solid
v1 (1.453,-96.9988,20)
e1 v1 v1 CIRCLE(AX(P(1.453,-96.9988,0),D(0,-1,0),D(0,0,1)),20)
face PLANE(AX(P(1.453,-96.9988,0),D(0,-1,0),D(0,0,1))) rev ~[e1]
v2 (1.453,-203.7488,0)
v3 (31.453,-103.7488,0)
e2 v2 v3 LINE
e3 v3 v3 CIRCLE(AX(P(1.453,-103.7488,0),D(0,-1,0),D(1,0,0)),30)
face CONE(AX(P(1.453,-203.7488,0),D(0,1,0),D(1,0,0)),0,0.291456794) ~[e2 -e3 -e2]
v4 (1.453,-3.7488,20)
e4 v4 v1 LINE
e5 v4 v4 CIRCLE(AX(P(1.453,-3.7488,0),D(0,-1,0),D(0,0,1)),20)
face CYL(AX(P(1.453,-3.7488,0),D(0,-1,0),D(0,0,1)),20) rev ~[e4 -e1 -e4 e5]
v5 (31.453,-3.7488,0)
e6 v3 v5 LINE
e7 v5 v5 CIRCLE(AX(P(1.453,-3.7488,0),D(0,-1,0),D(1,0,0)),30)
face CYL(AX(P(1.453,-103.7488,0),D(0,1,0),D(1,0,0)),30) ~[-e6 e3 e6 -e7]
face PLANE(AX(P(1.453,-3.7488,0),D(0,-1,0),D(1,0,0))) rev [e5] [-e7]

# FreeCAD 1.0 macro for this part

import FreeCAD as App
import Part
import Sketcher


def add_polygon(sketch, points):
    """Adds a closed chain of lines whose ends are joined by coincident constraints."""
    first, n = sketch.GeometryCount, len(points)
    for a, b in zip(points, points[1:] + points[:1]):
        sketch.addGeometry(Part.LineSegment(App.Vector(*a, 0), App.Vector(*b, 0)), False)
    for i in range(n):
        sketch.addConstraint(Sketcher.Constraint("Coincident", first + i, 2, first + (i + 1) % n, 1))

doc = App.newDocument("Part")
body = doc.addObject("PartDesign::Body", "Body")

sketch1 = body.newObject("Sketcher::SketchObject", "Sketch")
sketch1.AttachmentSupport = (doc.getObject("XY_Plane"), [""])
sketch1.MapMode = "FlatFace"
add_polygon(sketch1, [(31.453, -3.7488), (1.453, -3.7488), (1.453, -203.7488), (31.453, -103.7488)])
sketch1.addGeometry(Part.LineSegment(App.Vector(1.453, -3.7488, 0), App.Vector(1.453, -203.7488, 0)), True)
sketch1.addConstraint([
    Sketcher.Constraint("Horizontal", 0),
    Sketcher.Constraint("Vertical", 1),
    Sketcher.Constraint("Vertical", 3),
    Sketcher.Constraint("Vertical", 4),
    Sketcher.Constraint("Coincident", 4, 1, 0, 2),
    Sketcher.Constraint("Equal", 1, 4),
    Sketcher.Constraint("DistanceX", 0, 2, 0, 1, 30.0),
    Sketcher.Constraint("DistanceY", 1, 2, 1, 1, 200.0),
    Sketcher.Constraint("DistanceY", 3, 1, 3, 2, 100.0),
    Sketcher.Constraint("DistanceX", -1, 1, 0, 2, 1.453),
    Sketcher.Constraint("DistanceY", 0, 2, -1, 1, 3.7488),
])
revolution = body.newObject("PartDesign::Revolution", "Revolution")
revolution.Profile = sketch1
revolution.ReferenceAxis = (sketch1, ["Axis0"])
revolution.Angle = 360

sketch2 = body.newObject("Sketcher::SketchObject", "Sketch001")
sketch2.AttachmentSupport = (doc.getObject("XZ_Plane"), [""])
sketch2.MapMode = "FlatFace"
sketch2.AttachmentOffset = App.Placement(App.Vector(0, 0, 3.7488), App.Rotation())
sketch2.addGeometry(Part.Circle(App.Vector(1.453, 0, 0), App.Vector(0, 0, 1), 20), False)
sketch2.addConstraint([
    Sketcher.Constraint("PointOnObject", 0, 3, -1),
    Sketcher.Constraint("Diameter", 0, 40.0),
    Sketcher.Constraint("DistanceX", -1, 1, 0, 3, 1.453),
])
doc.recompute()
hole = body.newObject("PartDesign::Hole", "Hole")
hole.Profile = sketch2
hole.ThreadType = "None"
hole.Diameter = 40
hole.DepthType = "Dimension"
hole.Depth = 93.25
hole.DrillPoint = "Flat"
hole.Reversed = True

doc.recompute()
